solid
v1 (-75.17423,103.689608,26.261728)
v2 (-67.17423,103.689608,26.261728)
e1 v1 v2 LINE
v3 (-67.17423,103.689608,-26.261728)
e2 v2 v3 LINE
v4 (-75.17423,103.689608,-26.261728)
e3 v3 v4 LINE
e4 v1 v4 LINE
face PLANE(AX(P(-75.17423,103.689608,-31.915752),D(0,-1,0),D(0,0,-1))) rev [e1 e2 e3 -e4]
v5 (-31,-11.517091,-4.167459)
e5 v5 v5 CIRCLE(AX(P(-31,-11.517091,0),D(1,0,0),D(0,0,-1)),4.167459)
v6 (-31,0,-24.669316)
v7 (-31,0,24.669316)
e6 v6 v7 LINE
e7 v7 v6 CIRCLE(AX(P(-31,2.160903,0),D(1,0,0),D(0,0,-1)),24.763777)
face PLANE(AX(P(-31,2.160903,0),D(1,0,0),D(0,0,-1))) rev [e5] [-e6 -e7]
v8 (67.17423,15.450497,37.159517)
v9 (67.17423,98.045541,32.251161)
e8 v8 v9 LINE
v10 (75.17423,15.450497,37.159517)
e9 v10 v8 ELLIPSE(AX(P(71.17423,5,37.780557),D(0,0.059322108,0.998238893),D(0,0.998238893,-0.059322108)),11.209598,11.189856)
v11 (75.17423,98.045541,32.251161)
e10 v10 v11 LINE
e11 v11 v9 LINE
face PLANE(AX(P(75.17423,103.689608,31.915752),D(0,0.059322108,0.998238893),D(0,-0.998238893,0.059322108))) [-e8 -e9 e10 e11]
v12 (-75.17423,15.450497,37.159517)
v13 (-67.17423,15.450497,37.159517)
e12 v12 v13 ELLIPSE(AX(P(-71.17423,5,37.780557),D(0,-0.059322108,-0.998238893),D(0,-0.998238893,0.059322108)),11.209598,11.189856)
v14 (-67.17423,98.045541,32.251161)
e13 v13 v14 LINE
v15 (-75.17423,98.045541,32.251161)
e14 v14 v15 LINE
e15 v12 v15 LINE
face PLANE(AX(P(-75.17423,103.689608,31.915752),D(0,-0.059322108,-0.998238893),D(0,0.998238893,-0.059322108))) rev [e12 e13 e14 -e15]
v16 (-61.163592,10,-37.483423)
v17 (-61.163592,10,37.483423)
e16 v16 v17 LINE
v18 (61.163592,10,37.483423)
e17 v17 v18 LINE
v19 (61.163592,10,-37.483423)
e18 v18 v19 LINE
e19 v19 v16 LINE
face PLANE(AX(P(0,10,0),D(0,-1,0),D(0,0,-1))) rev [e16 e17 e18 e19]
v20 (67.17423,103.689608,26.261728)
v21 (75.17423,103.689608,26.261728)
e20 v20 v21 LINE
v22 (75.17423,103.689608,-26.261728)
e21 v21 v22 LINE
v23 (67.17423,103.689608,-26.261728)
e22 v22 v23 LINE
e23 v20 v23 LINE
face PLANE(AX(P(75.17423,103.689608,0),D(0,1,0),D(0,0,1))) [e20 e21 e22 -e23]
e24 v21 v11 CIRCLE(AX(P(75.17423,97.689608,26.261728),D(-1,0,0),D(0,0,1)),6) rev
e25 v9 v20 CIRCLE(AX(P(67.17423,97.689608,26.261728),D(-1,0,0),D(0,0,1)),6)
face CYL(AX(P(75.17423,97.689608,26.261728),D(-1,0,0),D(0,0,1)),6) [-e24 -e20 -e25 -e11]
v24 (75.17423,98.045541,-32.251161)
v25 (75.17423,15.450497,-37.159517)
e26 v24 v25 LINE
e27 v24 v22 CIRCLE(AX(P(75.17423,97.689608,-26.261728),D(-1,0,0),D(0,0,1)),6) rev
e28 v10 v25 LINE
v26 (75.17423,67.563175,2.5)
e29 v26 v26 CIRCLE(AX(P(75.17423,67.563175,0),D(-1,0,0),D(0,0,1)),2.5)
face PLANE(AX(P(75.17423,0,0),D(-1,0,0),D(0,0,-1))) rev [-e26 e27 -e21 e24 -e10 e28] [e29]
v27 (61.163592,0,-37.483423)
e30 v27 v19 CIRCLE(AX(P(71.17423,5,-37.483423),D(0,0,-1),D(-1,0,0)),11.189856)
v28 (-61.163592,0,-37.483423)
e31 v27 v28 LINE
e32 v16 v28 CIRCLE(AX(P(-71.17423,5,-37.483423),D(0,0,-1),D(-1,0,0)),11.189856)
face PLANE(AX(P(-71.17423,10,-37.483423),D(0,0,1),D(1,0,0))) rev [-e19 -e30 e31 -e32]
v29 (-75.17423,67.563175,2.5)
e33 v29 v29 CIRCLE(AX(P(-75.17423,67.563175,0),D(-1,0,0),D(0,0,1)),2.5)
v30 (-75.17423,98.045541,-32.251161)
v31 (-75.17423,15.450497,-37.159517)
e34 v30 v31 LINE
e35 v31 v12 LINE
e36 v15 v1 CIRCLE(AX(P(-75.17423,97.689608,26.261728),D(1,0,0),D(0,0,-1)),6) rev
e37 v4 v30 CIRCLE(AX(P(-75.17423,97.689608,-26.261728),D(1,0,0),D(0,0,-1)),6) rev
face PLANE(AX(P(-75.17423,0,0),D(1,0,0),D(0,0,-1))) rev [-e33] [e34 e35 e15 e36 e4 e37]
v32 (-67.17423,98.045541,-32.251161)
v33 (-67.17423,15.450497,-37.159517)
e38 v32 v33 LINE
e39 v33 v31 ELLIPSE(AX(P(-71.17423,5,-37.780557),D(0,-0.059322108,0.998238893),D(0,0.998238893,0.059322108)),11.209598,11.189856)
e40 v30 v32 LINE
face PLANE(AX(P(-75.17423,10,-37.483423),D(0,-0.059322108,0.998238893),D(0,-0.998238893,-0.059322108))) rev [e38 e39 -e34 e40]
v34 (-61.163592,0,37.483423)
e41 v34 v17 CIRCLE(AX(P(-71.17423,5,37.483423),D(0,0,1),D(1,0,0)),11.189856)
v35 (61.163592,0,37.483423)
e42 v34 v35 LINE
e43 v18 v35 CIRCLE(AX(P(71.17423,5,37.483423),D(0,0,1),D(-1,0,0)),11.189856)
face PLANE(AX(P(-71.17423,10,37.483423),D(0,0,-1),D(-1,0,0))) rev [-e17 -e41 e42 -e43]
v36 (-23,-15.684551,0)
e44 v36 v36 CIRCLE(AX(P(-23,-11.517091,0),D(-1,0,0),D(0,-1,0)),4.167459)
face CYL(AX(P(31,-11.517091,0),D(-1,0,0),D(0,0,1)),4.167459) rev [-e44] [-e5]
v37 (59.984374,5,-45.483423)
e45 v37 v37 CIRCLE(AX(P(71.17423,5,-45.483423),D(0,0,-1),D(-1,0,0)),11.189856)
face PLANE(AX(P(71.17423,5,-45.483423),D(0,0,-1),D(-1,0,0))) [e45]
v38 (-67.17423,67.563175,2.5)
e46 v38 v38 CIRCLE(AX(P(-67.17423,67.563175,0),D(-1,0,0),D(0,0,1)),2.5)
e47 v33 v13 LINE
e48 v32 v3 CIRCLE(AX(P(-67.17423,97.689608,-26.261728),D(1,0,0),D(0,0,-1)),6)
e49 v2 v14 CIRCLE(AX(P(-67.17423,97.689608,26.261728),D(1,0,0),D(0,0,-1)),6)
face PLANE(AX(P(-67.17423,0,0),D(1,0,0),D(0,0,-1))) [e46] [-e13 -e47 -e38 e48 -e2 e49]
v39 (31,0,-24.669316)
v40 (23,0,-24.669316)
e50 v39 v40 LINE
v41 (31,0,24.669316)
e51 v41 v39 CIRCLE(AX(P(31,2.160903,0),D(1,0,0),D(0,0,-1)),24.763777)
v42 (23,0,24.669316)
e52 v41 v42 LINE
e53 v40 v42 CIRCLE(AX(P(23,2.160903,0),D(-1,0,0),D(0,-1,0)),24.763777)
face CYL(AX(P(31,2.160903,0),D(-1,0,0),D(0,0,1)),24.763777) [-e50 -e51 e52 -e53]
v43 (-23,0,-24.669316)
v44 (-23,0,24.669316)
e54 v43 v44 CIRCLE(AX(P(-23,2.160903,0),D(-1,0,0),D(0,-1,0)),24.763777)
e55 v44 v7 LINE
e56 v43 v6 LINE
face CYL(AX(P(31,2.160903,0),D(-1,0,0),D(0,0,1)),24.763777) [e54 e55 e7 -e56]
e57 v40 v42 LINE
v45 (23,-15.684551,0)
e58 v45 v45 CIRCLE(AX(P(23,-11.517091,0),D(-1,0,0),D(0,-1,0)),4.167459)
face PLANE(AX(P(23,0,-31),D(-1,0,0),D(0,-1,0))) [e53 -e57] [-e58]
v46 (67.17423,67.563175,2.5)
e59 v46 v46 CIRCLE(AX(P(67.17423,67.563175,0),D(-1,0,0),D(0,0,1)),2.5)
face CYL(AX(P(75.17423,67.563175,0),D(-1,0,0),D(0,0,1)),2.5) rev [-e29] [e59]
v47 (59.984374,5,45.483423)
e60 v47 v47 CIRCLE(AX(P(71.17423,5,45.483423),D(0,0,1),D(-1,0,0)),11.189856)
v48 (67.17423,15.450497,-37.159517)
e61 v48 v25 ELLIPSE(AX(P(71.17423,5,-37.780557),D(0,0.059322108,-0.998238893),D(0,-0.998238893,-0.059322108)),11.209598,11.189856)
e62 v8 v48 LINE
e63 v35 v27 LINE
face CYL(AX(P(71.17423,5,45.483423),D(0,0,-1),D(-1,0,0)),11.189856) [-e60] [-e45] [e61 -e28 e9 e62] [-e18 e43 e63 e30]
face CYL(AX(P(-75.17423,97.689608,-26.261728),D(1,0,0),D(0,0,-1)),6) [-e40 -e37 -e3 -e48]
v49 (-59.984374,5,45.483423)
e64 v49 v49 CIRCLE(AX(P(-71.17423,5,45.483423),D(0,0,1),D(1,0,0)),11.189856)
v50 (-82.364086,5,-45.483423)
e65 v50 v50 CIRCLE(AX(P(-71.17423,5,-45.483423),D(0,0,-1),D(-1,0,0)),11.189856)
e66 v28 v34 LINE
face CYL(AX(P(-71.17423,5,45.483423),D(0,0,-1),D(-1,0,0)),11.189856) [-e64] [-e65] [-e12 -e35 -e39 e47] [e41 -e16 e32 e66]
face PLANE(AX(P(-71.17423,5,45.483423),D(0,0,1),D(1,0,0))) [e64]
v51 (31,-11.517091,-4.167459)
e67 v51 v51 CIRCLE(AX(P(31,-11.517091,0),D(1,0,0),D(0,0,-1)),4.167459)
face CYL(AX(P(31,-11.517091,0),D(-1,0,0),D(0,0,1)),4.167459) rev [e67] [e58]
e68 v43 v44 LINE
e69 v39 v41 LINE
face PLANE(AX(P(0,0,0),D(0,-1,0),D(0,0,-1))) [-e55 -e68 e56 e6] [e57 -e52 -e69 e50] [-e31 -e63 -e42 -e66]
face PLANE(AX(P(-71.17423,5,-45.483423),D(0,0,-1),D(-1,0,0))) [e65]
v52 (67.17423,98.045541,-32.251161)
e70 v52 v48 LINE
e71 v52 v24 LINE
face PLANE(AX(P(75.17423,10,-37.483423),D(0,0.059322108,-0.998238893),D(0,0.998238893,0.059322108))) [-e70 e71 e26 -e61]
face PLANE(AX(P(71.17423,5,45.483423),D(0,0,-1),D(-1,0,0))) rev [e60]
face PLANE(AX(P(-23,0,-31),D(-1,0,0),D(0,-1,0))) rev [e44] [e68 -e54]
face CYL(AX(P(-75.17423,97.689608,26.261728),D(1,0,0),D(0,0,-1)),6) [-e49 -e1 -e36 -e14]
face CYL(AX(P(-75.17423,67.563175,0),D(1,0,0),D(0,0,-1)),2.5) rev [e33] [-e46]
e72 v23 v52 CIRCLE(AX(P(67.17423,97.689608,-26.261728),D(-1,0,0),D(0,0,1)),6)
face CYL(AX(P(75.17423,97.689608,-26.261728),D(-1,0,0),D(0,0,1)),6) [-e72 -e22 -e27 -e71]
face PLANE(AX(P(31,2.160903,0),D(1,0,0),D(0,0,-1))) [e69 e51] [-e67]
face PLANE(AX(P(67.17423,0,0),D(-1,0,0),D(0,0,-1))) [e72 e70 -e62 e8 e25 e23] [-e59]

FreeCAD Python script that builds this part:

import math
import FreeCAD as App
import Part
import Sketcher
Q = App.Units.Quantity


def edges_at(feature, points):
    """Names of the edges that pass closest to the given points."""
    edges = feature.Shape.Edges
    near = lambda p: min(range(len(edges)), key=lambda i: edges[i].distToShape(Part.Vertex(*p))[0])
    return sorted({f"Edge{near(p) + 1}" for p in points})

doc = App.newDocument("Part")
params = doc.addObject("Spreadsheet::Sheet", "Params")
for row, (alias, value) in enumerate([
    ("pad1_length", "10 mm"),
    ("pad2_length", "8 mm"),
    ("sketch3_diameter", "5 mm"),
    ("sketch3_width", "10 mm"),
    ("pad3_length", "8 mm"),
    ("pad4_length", "74.966845 mm"),
    ("pad5_length", "8 mm"),
    ("fillet_radius", "6 mm"),
    ("pad6_length", "62 mm"),
    ("sketch7_width", "46 mm"),
    ("pocket1_length", "62 mm"),
], start=1):
    params.set(f"A{row}", alias)
    params.set(f"B{row}", "=" + value)
    params.setAlias(f"B{row}", alias)

body = doc.addObject("PartDesign::Body", "Body")

sketch1 = body.newObject("Sketcher::SketchObject", "Sketch")
sketch1.AttachmentSupport = (doc.getObject("XZ_Plane"), [""])
sketch1.MapMode = "FlatFace"
sketch1.addGeometry(Part.LineSegment(App.Vector(-71, -37, 0), App.Vector(-71, 37, 0)), False)
sketch1.addGeometry(Part.LineSegment(App.Vector(-71, 37, 0), App.Vector(71, 37, 0)), False)
sketch1.addGeometry(Part.LineSegment(App.Vector(71, 37, 0), App.Vector(71, -37, 0)), False)
sketch1.addGeometry(Part.LineSegment(App.Vector(71, -37, 0), App.Vector(-71, -37, 0)), False)
sketch1.addConstraint(Sketcher.Constraint("Coincident", 0, 2, 1, 1))
sketch1.addConstraint(Sketcher.Constraint("Coincident", 1, 2, 2, 1))
sketch1.addConstraint(Sketcher.Constraint("Coincident", 2, 2, 3, 1))
sketch1.addConstraint(Sketcher.Constraint("Coincident", 3, 2, 0, 1))
sketch1.addConstraint(Sketcher.Constraint("Vertical", 0))
sketch1.addConstraint(Sketcher.Constraint("Horizontal", 1))
sketch1.addConstraint(Sketcher.Constraint("Vertical", 2))
sketch1.addConstraint(Sketcher.Constraint("Horizontal", 3))
sketch1.addConstraint(Sketcher.Constraint("Symmetric", 0, 2, 2, 2, -1, 1))
sketch1.addConstraint(Sketcher.Constraint("DistanceX", 1, 1, 1, 2, Q("142.34846 mm")))
sketch1.addConstraint(Sketcher.Constraint("DistanceY", 0, 1, 0, 2, Q("74.966845 mm")))
pad1 = body.newObject("PartDesign::Pad", "Pad")
pad1.Profile = sketch1
pad1.setExpression("Length", "Params.pad1_length")
pad1.Reversed = True

sketch2 = body.newObject("Sketcher::SketchObject", "Sketch001")
sketch2.AttachmentSupport = (doc.getObject("XY_Plane"), [""])
sketch2.MapMode = "FlatFace"
sketch2.AttachmentOffset = App.Placement(App.Vector(0, 0, 37.483423), App.Rotation())
sketch2.addGeometry(Part.Circle(App.Vector(-71, 5, 0), App.Vector(0, 0, 1), 11), False)
sketch2.addGeometry(Part.Circle(App.Vector(71, 5, 0), App.Vector(0, 0, 1), 11), False)
sketch2.addConstraint(Sketcher.Constraint("Equal", 0, 1))
sketch2.addConstraint(Sketcher.Constraint("Symmetric", 0, 3, 1, 3, -2))
sketch2.addConstraint(Sketcher.Constraint("DistanceY", -1, 1, 0, 3, Q("5 mm")))
sketch2.addConstraint(Sketcher.Constraint("Diameter", 0, Q("22.379712 mm")))
sketch2.addConstraint(Sketcher.Constraint("DistanceX", 0, 3, -1, 1, Q("71.17423 mm")))
pad2 = body.newObject("PartDesign::Pad", "Pad001")
pad2.Profile = sketch2
pad2.setExpression("Length", "Params.pad2_length")

sketch3 = body.newObject("Sketcher::SketchObject", "Sketch002")
sketch3.AttachmentSupport = (doc.getObject("YZ_Plane"), [""])
sketch3.MapMode = "FlatFace"
sketch3.AttachmentOffset = App.Placement(App.Vector(0, 0, -71.17423), App.Rotation())
sketch3.addGeometry(Part.LineSegment(App.Vector(10, 37.5, 0), App.Vector(103.7, 31.9, 0)), False)
sketch3.addGeometry(Part.LineSegment(App.Vector(103.7, 31.9, 0), App.Vector(103.7, -31.9, 0)), False)
sketch3.addGeometry(Part.LineSegment(App.Vector(103.7, -31.9, 0), App.Vector(10, -37.5, 0)), False)
sketch3.addGeometry(Part.LineSegment(App.Vector(10, -37.5, 0), App.Vector(0, -37.5, 0)), False)
sketch3.addGeometry(Part.LineSegment(App.Vector(0, -37.5, 0), App.Vector(0, 37.5, 0)), False)
sketch3.addGeometry(Part.LineSegment(App.Vector(0, 37.5, 0), App.Vector(10, 37.5, 0)), False)
sketch3.addGeometry(Part.Circle(App.Vector(67.6, 0, 0), App.Vector(0, 0, 1), 2.5), False)
sketch3.addConstraint(Sketcher.Constraint("Coincident", 0, 2, 1, 1))
sketch3.addConstraint(Sketcher.Constraint("Coincident", 1, 2, 2, 1))
sketch3.addConstraint(Sketcher.Constraint("Coincident", 2, 2, 3, 1))
sketch3.addConstraint(Sketcher.Constraint("Coincident", 3, 2, 4, 1))
sketch3.addConstraint(Sketcher.Constraint("Coincident", 4, 2, 5, 1))
sketch3.addConstraint(Sketcher.Constraint("Coincident", 5, 2, 0, 1))
sketch3.addConstraint(Sketcher.Constraint("Vertical", 1))
sketch3.addConstraint(Sketcher.Constraint("Horizontal", 3))
sketch3.addConstraint(Sketcher.Constraint("Vertical", 4))
sketch3.addConstraint(Sketcher.Constraint("Horizontal", 5))
sketch3.addConstraint(Sketcher.Constraint("Symmetric", 3, 2, 4, 2, -1, 1))
sketch3.addConstraint(Sketcher.Constraint("PointOnObject", 6, 3, -1))
sketch3.addConstraint(Sketcher.Constraint("Vertical", 2, 2, 5, 2))
sketch3.addConstraint(Sketcher.Constraint("Equal", 0, 2))
sketch3.addConstraint(Sketcher.Constraint("Diameter", 6, Q("5 mm")))
sketch3.addConstraint(Sketcher.Constraint("DistanceX", 3, 2, 3, 1, Q("10 mm")))
sketch3.addConstraint(Sketcher.Constraint("DistanceY", 1, 2, 1, 1, Q("63.831505 mm")))
sketch3.addConstraint(Sketcher.Constraint("DistanceY", 4, 1, 4, 2, Q("74.966845 mm")))
sketch3.addConstraint(Sketcher.Constraint("Distance", 0, Q("93.854896 mm")))
sketch3.addConstraint(Sketcher.Constraint("DistanceX", -1, 1, 6, 3, Q("67.563175 mm")))
sketch3.setExpression("Constraints[14]", "Params.sketch3_diameter")
sketch3.setExpression("Constraints[15]", "Params.sketch3_width")
pad3 = body.newObject("PartDesign::Pad", "Pad002")
pad3.Profile = sketch3
pad3.setExpression("Length", "Params.pad3_length")
pad3.Midplane = True

sketch4 = body.newObject("Sketcher::SketchObject", "Sketch003")
sketch4.AttachmentSupport = (doc.getObject("XY_Plane"), [""])
sketch4.MapMode = "FlatFace"
sketch4.AttachmentOffset = App.Placement(App.Vector(0, 0, 37.483423), App.Rotation())
sketch4.addGeometry(Part.Circle(App.Vector(-71, 5, 0), App.Vector(0, 0, 1), 11), False)
sketch4.addGeometry(Part.Circle(App.Vector(71, 5, 0), App.Vector(0, 0, 1), 11), False)
sketch4.addConstraint(Sketcher.Constraint("Equal", 0, 1))
sketch4.addConstraint(Sketcher.Constraint("Symmetric", 0, 3, 1, 3, -2))
sketch4.addConstraint(Sketcher.Constraint("DistanceY", -1, 1, 0, 3, Q("5 mm")))
sketch4.addConstraint(Sketcher.Constraint("Diameter", 0, Q("22.379712 mm")))
sketch4.addConstraint(Sketcher.Constraint("DistanceX", 0, 3, -1, 1, Q("71.17423 mm")))
pad4 = body.newObject("PartDesign::Pad", "Pad003")
pad4.Profile = sketch4
pad4.setExpression("Length", "Params.pad4_length")
pad4.Reversed = True

sketch5 = body.newObject("Sketcher::SketchObject", "Sketch004")
sketch5.AttachmentSupport = (doc.getObject("XY_Plane"), [""])
sketch5.MapMode = "FlatFace"
sketch5.AttachmentOffset = App.Placement(App.Vector(0, 0, -37.483423), App.Rotation())
sketch5.addGeometry(Part.Circle(App.Vector(71, 5, 0), App.Vector(0, 0, 1), 11), False)
sketch5.addGeometry(Part.Circle(App.Vector(-71, 5, 0), App.Vector(0, 0, 1), 11), False)
sketch5.addConstraint(Sketcher.Constraint("Equal", 0, 1))
sketch5.addConstraint(Sketcher.Constraint("Symmetric", 0, 3, 1, 3, -2))
sketch5.addConstraint(Sketcher.Constraint("DistanceY", -1, 1, 0, 3, Q("5 mm")))
sketch5.addConstraint(Sketcher.Constraint("Diameter", 0, Q("22.379712 mm")))
sketch5.addConstraint(Sketcher.Constraint("DistanceX", -1, 1, 0, 3, Q("71.17423 mm")))
pad5 = body.newObject("PartDesign::Pad", "Pad004")
pad5.Profile = sketch5
pad5.setExpression("Length", "Params.pad5_length")
pad5.Reversed = True
doc.recompute()

mirrored = body.newObject("PartDesign::Mirrored", "Mirrored")
mirrored.Originals = [pad3]
mirrored.MirrorPlane = (doc.getObject("YZ_Plane"), [""])
body.Tip = mirrored
doc.recompute()

fillet = body.newObject("PartDesign::Fillet", "Fillet")
fillet.Base = (mirrored, edges_at(mirrored, [
    (71.174, 103.69, -31.916),
    (-71.174, 103.69, 31.916),
    (-71.174, 103.69, -31.916),
    (71.174, 103.69, 31.916),
]))
fillet.setExpression("Radius", "Params.fillet_radius")

sketch6 = body.newObject("Sketcher::SketchObject", "Sketch005")
sketch6.AttachmentSupport = (doc.getObject("YZ_Plane"), [""])
sketch6.MapMode = "FlatFace"
sketch6.addGeometry(Part.LineSegment(App.Vector(0, -24.7, 0), App.Vector(0, 24.7, 0)), False)
sketch6.addGeometry(Part.ArcOfCircle(Part.Circle(App.Vector(2.2, 0, 0), App.Vector(0, 0, 1), 24.8), math.radians(95), math.radians(265)), False)
sketch6.addGeometry(Part.Circle(App.Vector(-11.5, 0, 0), App.Vector(0, 0, 1), 4.2), False)
sketch6.addConstraint(Sketcher.Constraint("Coincident", 0, 1, 1, 2))
sketch6.addConstraint(Sketcher.Constraint("Coincident", 1, 1, 0, 2))
sketch6.addConstraint(Sketcher.Constraint("Vertical", 0))
sketch6.addConstraint(Sketcher.Constraint("Symmetric", 0, 1, 1, 1, -1, 1))
sketch6.addConstraint(Sketcher.Constraint("PointOnObject", 2, 3, -1))
sketch6.addConstraint(Sketcher.Constraint("Diameter", 2, Q("8.334919 mm")))
sketch6.addConstraint(Sketcher.Constraint("Radius", 1, Q("24.763777 mm")))
sketch6.addConstraint(Sketcher.Constraint("DistanceY", 0, 1, 0, 2, Q("49.338632 mm")))
sketch6.addConstraint(Sketcher.Constraint("DistanceX", 2, 3, -1, 1, Q("11.517091 mm")))
pad6 = body.newObject("PartDesign::Pad", "Pad005")
pad6.Profile = sketch6
pad6.setExpression("Length", "Params.pad6_length")
pad6.Midplane = True

sketch7 = body.newObject("Sketcher::SketchObject", "Sketch006")
sketch7.AttachmentSupport = (doc.getObject("XY_Plane"), [""])
sketch7.MapMode = "FlatFace"
sketch7.addGeometry(Part.LineSegment(App.Vector(-23, 0, 0), App.Vector(-23, -25, 0)), False)
sketch7.addGeometry(Part.LineSegment(App.Vector(-23, -25, 0), App.Vector(23, -25, 0)), False)
sketch7.addGeometry(Part.LineSegment(App.Vector(23, -25, 0), App.Vector(23, 0, 0)), False)
sketch7.addGeometry(Part.LineSegment(App.Vector(23, 0, 0), App.Vector(-23, 0, 0)), False)
sketch7.addConstraint(Sketcher.Constraint("Coincident", 0, 2, 1, 1))
sketch7.addConstraint(Sketcher.Constraint("Coincident", 1, 2, 2, 1))
sketch7.addConstraint(Sketcher.Constraint("Coincident", 2, 2, 3, 1))
sketch7.addConstraint(Sketcher.Constraint("Coincident", 3, 2, 0, 1))
sketch7.addConstraint(Sketcher.Constraint("Vertical", 0))
sketch7.addConstraint(Sketcher.Constraint("Horizontal", 1))
sketch7.addConstraint(Sketcher.Constraint("Vertical", 2))
sketch7.addConstraint(Sketcher.Constraint("Horizontal", 3))
sketch7.addConstraint(Sketcher.Constraint("Symmetric", 2, 2, 3, 2, -1, 1))
sketch7.addConstraint(Sketcher.Constraint("DistanceX", 1, 1, 1, 2, Q("46 mm")))
sketch7.addConstraint(Sketcher.Constraint("DistanceY", 0, 2, 0, 1, Q("24.601759 mm")))
sketch7.setExpression("Constraints[9]", "Params.sketch7_width")
pocket1 = body.newObject("PartDesign::Pocket", "Pocket")
pocket1.Profile = sketch7
pocket1.setExpression("Length", "Params.pocket1_length")
pocket1.Midplane = True

doc.recompute()
